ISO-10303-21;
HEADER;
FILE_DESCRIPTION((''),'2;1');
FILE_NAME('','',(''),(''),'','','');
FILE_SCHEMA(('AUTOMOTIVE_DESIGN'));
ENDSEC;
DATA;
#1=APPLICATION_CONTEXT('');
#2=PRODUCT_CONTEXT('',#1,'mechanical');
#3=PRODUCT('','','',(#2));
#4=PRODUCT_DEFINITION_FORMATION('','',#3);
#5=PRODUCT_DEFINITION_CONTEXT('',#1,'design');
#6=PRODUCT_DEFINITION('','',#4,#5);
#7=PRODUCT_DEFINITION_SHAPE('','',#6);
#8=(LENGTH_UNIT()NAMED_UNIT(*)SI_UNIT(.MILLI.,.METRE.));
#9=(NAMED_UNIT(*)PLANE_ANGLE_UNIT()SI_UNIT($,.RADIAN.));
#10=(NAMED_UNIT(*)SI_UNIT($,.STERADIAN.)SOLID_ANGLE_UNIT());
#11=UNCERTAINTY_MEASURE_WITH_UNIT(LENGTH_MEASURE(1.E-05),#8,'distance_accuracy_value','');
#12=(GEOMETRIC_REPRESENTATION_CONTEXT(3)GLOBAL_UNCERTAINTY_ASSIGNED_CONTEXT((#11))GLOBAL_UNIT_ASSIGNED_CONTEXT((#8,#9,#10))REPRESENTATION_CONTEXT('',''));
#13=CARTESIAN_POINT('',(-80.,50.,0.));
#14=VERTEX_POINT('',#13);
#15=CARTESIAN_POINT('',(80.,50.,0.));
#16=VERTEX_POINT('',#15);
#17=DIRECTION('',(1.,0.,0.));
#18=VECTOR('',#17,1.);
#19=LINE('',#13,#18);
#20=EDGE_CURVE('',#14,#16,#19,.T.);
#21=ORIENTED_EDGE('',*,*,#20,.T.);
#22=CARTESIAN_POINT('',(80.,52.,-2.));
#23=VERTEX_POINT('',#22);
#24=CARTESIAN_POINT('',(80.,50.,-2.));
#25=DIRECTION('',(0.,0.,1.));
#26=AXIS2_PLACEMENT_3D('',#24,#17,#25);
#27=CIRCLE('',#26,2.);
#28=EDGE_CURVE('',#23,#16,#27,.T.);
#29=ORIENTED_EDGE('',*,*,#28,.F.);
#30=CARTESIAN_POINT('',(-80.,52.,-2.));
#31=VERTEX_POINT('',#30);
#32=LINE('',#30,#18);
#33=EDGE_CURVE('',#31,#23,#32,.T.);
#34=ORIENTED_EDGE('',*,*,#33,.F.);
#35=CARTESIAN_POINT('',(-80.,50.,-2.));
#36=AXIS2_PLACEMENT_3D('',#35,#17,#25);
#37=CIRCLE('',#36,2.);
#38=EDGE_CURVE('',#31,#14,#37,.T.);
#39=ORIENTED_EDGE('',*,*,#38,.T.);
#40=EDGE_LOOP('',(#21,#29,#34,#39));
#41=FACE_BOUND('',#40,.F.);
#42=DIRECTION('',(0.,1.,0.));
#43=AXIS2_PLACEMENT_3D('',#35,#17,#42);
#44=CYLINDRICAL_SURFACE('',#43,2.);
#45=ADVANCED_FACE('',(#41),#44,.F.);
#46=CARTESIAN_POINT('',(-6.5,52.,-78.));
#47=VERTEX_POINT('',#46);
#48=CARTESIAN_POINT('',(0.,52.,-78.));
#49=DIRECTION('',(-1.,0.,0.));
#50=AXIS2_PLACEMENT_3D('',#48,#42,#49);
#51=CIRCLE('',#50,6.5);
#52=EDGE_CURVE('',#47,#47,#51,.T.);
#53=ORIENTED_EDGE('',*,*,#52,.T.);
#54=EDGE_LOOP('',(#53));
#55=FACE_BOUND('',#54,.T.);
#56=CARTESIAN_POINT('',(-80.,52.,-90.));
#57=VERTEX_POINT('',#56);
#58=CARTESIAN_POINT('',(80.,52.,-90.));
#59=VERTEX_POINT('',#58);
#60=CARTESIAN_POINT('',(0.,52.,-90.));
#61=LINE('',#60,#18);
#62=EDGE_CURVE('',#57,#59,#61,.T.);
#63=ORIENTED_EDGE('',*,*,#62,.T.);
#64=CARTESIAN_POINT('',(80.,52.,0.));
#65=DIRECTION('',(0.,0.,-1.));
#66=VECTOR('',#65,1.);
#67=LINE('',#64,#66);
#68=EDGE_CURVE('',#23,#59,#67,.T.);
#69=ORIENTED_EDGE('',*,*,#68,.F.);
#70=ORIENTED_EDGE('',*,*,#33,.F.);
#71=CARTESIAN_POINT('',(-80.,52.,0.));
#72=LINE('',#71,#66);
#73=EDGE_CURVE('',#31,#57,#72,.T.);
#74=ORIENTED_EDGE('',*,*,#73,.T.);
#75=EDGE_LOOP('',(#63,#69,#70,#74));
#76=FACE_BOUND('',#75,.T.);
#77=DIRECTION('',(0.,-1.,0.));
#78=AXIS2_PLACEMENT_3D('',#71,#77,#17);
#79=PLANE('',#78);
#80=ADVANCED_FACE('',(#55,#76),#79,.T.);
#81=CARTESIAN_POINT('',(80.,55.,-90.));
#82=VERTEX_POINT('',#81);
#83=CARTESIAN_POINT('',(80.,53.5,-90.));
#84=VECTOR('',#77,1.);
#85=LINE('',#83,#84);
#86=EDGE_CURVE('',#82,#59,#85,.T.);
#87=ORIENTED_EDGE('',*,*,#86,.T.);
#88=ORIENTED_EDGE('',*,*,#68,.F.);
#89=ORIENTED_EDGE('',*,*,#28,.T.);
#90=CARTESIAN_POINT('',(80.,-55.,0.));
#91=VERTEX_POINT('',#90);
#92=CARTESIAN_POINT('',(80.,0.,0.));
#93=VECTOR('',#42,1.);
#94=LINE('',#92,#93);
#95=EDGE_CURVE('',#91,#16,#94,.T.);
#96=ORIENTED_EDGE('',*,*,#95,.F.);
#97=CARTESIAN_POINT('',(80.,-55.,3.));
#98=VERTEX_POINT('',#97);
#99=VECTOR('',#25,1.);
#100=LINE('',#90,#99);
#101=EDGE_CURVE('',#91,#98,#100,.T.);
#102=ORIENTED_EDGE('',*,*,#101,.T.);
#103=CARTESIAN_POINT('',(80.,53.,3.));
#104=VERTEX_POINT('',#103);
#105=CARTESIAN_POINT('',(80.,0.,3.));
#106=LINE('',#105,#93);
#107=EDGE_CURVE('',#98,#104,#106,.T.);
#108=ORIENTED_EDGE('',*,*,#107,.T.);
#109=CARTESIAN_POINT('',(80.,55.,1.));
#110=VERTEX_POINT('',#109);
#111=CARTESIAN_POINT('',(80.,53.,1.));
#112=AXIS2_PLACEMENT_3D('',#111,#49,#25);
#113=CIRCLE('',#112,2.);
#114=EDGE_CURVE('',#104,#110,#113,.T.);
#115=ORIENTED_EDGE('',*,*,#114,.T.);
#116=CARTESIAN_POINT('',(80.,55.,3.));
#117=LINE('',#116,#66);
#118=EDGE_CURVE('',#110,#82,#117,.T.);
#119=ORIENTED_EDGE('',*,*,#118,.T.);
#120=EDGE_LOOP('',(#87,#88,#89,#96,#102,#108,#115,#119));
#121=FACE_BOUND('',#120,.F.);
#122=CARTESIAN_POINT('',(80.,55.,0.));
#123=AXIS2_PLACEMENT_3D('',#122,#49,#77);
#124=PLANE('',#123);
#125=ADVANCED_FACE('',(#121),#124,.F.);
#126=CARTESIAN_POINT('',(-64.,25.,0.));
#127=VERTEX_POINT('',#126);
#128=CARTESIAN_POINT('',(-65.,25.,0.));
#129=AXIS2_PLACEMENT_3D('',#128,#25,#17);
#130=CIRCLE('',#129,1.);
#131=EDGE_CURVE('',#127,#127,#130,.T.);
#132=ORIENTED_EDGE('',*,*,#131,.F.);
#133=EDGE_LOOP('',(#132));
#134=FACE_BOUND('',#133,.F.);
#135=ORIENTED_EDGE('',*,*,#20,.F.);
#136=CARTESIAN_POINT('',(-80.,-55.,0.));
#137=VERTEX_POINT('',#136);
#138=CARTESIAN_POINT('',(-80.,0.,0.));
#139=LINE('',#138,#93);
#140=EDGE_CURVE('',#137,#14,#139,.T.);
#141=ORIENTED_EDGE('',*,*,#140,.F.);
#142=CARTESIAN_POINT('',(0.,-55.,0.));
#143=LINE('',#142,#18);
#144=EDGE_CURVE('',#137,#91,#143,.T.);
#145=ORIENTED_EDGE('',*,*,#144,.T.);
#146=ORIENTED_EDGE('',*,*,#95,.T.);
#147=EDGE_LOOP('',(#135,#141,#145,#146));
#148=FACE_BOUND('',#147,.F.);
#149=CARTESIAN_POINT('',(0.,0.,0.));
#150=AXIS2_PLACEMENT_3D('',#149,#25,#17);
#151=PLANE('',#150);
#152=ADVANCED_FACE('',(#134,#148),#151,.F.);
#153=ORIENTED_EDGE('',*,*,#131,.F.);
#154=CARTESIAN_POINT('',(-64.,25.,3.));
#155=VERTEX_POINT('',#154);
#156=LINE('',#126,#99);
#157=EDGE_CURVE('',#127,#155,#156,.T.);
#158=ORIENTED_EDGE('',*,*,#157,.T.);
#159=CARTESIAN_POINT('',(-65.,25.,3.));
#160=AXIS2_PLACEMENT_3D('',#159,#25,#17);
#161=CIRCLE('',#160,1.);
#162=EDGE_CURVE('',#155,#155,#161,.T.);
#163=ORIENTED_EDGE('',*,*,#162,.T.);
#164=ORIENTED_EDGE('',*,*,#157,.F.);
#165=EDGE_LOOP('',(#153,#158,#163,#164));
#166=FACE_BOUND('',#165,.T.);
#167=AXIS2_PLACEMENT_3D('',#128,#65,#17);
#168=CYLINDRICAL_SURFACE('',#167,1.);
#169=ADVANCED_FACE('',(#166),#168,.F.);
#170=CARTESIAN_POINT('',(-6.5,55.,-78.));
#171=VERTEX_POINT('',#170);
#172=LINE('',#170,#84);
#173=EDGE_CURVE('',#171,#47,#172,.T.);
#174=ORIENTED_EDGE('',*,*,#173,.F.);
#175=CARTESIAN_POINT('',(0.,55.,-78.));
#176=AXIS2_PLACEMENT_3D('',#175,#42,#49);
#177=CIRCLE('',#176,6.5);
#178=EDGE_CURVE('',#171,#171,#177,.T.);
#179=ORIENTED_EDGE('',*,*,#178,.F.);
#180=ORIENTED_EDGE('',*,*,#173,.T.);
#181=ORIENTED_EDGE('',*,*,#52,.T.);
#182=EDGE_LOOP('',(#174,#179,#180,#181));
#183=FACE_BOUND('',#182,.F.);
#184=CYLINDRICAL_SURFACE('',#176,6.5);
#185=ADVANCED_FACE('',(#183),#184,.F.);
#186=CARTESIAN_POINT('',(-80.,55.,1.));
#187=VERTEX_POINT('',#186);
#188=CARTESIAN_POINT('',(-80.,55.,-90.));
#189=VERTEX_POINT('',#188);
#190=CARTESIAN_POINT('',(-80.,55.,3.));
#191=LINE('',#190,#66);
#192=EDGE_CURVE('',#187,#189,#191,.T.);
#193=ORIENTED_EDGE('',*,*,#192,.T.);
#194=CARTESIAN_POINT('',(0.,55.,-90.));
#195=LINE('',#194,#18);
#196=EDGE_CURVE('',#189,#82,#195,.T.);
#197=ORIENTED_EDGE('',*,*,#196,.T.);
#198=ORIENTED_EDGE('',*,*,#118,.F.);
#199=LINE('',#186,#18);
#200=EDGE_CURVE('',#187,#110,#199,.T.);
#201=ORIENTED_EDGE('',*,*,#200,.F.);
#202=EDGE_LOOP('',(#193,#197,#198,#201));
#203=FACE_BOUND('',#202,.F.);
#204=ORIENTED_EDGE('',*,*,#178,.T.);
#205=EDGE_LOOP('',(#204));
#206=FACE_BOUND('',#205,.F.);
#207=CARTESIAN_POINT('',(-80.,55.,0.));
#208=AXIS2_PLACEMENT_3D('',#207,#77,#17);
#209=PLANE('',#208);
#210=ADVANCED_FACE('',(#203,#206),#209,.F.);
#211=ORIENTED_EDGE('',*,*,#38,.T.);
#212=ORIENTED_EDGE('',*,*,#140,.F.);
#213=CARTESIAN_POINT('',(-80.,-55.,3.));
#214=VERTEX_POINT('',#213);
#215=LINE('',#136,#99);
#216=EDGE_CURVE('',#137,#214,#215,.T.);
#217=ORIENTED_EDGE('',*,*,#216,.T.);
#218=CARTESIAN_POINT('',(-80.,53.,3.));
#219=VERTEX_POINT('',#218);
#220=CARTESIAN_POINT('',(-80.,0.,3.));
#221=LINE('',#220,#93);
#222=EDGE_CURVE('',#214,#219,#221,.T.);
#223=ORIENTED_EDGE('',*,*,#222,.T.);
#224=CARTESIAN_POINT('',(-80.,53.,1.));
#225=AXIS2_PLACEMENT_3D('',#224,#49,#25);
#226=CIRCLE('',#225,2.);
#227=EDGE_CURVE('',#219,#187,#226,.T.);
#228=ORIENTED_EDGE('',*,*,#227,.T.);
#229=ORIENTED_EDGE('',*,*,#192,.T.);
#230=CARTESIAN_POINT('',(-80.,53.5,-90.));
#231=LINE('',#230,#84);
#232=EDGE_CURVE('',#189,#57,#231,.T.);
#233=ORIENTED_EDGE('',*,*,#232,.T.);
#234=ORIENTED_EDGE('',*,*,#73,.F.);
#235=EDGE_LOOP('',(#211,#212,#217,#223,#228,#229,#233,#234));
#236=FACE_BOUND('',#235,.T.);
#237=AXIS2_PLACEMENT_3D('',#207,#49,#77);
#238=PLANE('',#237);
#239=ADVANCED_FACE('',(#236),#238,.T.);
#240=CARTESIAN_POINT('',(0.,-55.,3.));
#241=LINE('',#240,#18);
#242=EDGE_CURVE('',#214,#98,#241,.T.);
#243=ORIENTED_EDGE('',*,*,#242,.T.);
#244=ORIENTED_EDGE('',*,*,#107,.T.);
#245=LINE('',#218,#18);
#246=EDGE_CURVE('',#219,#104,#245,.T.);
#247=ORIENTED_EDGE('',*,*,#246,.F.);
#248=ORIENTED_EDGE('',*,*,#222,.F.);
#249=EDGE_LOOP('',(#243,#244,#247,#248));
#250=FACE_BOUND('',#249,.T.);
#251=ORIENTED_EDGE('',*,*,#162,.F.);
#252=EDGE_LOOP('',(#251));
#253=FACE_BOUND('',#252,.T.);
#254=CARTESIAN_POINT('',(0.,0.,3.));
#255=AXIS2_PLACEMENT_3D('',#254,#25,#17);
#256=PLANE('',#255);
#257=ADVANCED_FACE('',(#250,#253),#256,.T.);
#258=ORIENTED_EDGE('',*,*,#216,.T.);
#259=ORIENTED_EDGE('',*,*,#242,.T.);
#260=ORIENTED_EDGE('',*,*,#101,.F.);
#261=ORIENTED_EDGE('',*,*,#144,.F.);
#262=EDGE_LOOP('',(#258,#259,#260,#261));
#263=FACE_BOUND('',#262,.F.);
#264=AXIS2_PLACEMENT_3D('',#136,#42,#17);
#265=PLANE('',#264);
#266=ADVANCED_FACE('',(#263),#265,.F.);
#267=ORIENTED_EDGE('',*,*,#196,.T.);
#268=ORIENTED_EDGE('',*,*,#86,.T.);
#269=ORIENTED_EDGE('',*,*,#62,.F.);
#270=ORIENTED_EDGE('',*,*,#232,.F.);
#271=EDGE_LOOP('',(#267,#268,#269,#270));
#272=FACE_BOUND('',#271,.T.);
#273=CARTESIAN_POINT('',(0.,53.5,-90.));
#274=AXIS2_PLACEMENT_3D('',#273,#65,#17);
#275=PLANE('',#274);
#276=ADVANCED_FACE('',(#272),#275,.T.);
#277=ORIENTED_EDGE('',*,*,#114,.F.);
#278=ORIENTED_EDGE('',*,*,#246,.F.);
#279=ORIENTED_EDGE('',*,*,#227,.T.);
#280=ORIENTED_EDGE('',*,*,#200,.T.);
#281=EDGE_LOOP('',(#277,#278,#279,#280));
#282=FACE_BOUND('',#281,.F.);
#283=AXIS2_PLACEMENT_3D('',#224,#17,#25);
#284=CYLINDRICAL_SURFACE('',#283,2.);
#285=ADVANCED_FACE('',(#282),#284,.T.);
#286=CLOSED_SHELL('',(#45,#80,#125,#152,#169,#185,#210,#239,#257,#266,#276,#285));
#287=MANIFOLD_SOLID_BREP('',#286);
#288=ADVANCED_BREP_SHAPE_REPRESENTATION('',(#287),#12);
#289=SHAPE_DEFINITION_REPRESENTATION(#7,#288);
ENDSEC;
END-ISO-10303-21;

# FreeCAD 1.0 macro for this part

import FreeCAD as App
import Part
import Sketcher
from FreeCAD import Vector
Q = App.Units.Quantity


def edges_at(feature, points):
    """Names of the edges that pass closest to the given points."""
    edges = feature.Shape.Edges
    near = lambda p: min(range(len(edges)), key=lambda i: edges[i].distToShape(Part.Vertex(*p))[0])
    return sorted({f"Edge{near(p) + 1}" for p in points})


def add_polygon(sketch, points):
    """Adds a closed chain of lines whose ends are joined by coincident constraints."""
    first, n = sketch.GeometryCount, len(points)
    for a, b in zip(points, points[1:] + points[:1]):
        sketch.addGeometry(Part.LineSegment(App.Vector(*a, 0), App.Vector(*b, 0)), False)
    for i in range(n):
        sketch.addConstraint(Sketcher.Constraint("Coincident", first + i, 2, first + (i + 1) % n, 1))

doc = App.newDocument("Part")
body = doc.addObject("PartDesign::Body", "Body")

# Sketch on XY plane
sketch1 = doc.addObject("Sketcher::SketchObject", "Sketch")
body.addObject(sketch1)
sketch1.AttachmentSupport = (doc.XY_Plane, [""])
sketch1.MapMode = "FlatFace"
add_polygon(sketch1, [(-80, 55), (-80, -55), (80, -55), (80, 55)])  # lines 0-3
sketch1.addGeometry(Part.Circle(Vector(-65, 25, 0), Vector(0, 0, 1), 1), False)  # 4
sketch1.addConstraint([
    Sketcher.Constraint("Vertical", 0),
    Sketcher.Constraint("Horizontal", 1),
    Sketcher.Constraint("Vertical", 2),
    Sketcher.Constraint("Horizontal", 3),
    Sketcher.Constraint("Symmetric", 0, 2, 2, 2, -1, 1),
    Sketcher.Constraint("Diameter", 4, Q("2 mm")),
    Sketcher.Constraint("DistanceX", 1, 1, 1, 2, Q("160 mm")),
    Sketcher.Constraint("DistanceY", 0, 2, 0, 1, Q("110 mm")),
    Sketcher.Constraint("DistanceX", 4, 3, -1, 1, Q("65 mm")),
    Sketcher.Constraint("DistanceY", -1, 1, 4, 3, Q("25 mm")),
])
pad1 = doc.addObject("PartDesign::Pad", "Pad")
body.addObject(pad1)
pad1.Profile = sketch1
pad1.Length = 3

# Sketch on XY plane
sketch2 = doc.addObject("Sketcher::SketchObject", "Sketch001")
body.addObject(sketch2)
sketch2.AttachmentSupport = (doc.XY_Plane, [""])
sketch2.MapMode = "FlatFace"
add_polygon(sketch2, [(-80, 52), (-80, 55), (80, 55), (80, 52)])  # lines 0-3
sketch2.addConstraint([
    Sketcher.Constraint("Vertical", 0),
    Sketcher.Constraint("Horizontal", 1),
    Sketcher.Constraint("Vertical", 2),
    Sketcher.Constraint("Horizontal", 3),
    Sketcher.Constraint("DistanceX", 1, 1, 1, 2, Q("160 mm")),
    Sketcher.Constraint("DistanceY", 0, 1, 0, 2, Q("3 mm")),
    Sketcher.Constraint("DistanceX", 0, 2, -1, 1, Q("80 mm")),
    Sketcher.Constraint("DistanceY", -1, 1, 0, 2, Q("55 mm")),
])
pad2 = doc.addObject("PartDesign::Pad", "Pad001")
body.addObject(pad2)
pad2.Profile = sketch2
pad2.Length = 90
pad2.Reversed = True

# Sketch on XZ plane
sketch3 = doc.addObject("Sketcher::SketchObject", "Sketch002")
body.addObject(sketch3)
sketch3.AttachmentSupport = (doc.XZ_Plane, [""])
sketch3.MapMode = "FlatFace"
sketch3.AttachmentOffset = App.Placement(Vector(0, 0, -55), App.Rotation())
sketch3.addGeometry(Part.Circle(Vector(0, -78, 0), Vector(0, 0, 1), 6), False)
sketch3.addConstraint([
    Sketcher.Constraint("PointOnObject", 0, 3, -2),
    Sketcher.Constraint("Diameter", 0, Q("13 mm")),
    Sketcher.Constraint("DistanceY", 0, 3, -1, 1, Q("78 mm")),
])
pocket1 = doc.addObject("PartDesign::Pocket", "Pocket")
body.addObject(pocket1)
pocket1.Profile = sketch3
pocket1.Type = "ThroughAll"
pocket1.Reversed = True
doc.recompute()

fillet = doc.addObject("PartDesign::Fillet", "Fillet")
body.addObject(fillet)
fillet.Base = (pocket1, edges_at(pocket1, [(0, 55, 3), (0, 52, 0)]))
fillet.Radius = 2

doc.recompute()
